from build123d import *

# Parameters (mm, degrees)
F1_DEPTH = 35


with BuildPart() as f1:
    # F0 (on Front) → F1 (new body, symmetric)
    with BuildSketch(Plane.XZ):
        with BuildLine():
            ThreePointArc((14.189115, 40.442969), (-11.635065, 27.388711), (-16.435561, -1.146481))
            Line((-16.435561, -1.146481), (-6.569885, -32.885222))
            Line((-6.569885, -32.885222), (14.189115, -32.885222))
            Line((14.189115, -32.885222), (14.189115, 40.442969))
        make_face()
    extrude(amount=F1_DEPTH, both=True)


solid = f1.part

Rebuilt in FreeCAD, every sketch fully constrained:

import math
import FreeCAD as App
import Part
import Sketcher
from FreeCAD import Vector

doc = App.newDocument("Part")
params = doc.addObject("Spreadsheet::Sheet", "Params")
for row, (alias, value) in enumerate([
    ("pad1_length", "70 mm"),
], start=1):
    params.set(f"A{row}", alias)
    params.set(f"B{row}", "=" + value)
    params.setAlias(f"B{row}", alias)

body = doc.addObject("PartDesign::Body", "Body")

# Sketch on XZ plane
sketch1 = body.newObject("Sketcher::SketchObject", "Sketch")
sketch1.AttachmentSupport = (doc.getObject("XZ_Plane"), [""])
sketch1.MapMode = "FlatFace"
sketch1.addGeometry([
    Part.ArcOfCircle(Part.Circle(Vector(14.189115, 8.372899, 0), Vector(0, 0, 1), 32.07007), math.radians(90), math.radians(197.267344)),
    Part.LineSegment(Vector(-16.435561, -1.146481, 0), Vector(-6.569885, -32.885222, 0)),
    Part.LineSegment(Vector(-6.569885, -32.885222, 0), Vector(14.189115, -32.885222, 0)),
    Part.LineSegment(Vector(14.189115, -32.885222, 0), Vector(14.189115, 40.442969, 0)),
], False)
sketch1.addConstraint([
    Sketcher.Constraint("Tangent", 0, 2, 1, 1),
    Sketcher.Constraint("Coincident", 1, 2, 2, 1),
    Sketcher.Constraint("Coincident", 2, 2, 3, 1),
    Sketcher.Constraint("Coincident", 3, 2, 0, 1),
    Sketcher.Constraint("Horizontal", 2),
    Sketcher.Constraint("Vertical", 3),
    Sketcher.Constraint("Vertical", 0, 3, 2, 2),
    Sketcher.Constraint("DistanceX", 2, 1, 2, 2, 20.759),
    Sketcher.Constraint("Radius", 0, 32.07007),
    Sketcher.Constraint("DistanceY", 3, 1, 3, 2, 73.328191),
    Sketcher.Constraint("DistanceY", -1, 1, 0, 3, 8.372899),
    Sketcher.Constraint("DistanceX", 0, 2, -1, 1, 16.435561),
])
pad1 = body.newObject("PartDesign::Pad", "Pad")
pad1.Profile = sketch1
pad1.setExpression("Length", "Params.pad1_length")
pad1.Midplane = True

doc.recompute()
